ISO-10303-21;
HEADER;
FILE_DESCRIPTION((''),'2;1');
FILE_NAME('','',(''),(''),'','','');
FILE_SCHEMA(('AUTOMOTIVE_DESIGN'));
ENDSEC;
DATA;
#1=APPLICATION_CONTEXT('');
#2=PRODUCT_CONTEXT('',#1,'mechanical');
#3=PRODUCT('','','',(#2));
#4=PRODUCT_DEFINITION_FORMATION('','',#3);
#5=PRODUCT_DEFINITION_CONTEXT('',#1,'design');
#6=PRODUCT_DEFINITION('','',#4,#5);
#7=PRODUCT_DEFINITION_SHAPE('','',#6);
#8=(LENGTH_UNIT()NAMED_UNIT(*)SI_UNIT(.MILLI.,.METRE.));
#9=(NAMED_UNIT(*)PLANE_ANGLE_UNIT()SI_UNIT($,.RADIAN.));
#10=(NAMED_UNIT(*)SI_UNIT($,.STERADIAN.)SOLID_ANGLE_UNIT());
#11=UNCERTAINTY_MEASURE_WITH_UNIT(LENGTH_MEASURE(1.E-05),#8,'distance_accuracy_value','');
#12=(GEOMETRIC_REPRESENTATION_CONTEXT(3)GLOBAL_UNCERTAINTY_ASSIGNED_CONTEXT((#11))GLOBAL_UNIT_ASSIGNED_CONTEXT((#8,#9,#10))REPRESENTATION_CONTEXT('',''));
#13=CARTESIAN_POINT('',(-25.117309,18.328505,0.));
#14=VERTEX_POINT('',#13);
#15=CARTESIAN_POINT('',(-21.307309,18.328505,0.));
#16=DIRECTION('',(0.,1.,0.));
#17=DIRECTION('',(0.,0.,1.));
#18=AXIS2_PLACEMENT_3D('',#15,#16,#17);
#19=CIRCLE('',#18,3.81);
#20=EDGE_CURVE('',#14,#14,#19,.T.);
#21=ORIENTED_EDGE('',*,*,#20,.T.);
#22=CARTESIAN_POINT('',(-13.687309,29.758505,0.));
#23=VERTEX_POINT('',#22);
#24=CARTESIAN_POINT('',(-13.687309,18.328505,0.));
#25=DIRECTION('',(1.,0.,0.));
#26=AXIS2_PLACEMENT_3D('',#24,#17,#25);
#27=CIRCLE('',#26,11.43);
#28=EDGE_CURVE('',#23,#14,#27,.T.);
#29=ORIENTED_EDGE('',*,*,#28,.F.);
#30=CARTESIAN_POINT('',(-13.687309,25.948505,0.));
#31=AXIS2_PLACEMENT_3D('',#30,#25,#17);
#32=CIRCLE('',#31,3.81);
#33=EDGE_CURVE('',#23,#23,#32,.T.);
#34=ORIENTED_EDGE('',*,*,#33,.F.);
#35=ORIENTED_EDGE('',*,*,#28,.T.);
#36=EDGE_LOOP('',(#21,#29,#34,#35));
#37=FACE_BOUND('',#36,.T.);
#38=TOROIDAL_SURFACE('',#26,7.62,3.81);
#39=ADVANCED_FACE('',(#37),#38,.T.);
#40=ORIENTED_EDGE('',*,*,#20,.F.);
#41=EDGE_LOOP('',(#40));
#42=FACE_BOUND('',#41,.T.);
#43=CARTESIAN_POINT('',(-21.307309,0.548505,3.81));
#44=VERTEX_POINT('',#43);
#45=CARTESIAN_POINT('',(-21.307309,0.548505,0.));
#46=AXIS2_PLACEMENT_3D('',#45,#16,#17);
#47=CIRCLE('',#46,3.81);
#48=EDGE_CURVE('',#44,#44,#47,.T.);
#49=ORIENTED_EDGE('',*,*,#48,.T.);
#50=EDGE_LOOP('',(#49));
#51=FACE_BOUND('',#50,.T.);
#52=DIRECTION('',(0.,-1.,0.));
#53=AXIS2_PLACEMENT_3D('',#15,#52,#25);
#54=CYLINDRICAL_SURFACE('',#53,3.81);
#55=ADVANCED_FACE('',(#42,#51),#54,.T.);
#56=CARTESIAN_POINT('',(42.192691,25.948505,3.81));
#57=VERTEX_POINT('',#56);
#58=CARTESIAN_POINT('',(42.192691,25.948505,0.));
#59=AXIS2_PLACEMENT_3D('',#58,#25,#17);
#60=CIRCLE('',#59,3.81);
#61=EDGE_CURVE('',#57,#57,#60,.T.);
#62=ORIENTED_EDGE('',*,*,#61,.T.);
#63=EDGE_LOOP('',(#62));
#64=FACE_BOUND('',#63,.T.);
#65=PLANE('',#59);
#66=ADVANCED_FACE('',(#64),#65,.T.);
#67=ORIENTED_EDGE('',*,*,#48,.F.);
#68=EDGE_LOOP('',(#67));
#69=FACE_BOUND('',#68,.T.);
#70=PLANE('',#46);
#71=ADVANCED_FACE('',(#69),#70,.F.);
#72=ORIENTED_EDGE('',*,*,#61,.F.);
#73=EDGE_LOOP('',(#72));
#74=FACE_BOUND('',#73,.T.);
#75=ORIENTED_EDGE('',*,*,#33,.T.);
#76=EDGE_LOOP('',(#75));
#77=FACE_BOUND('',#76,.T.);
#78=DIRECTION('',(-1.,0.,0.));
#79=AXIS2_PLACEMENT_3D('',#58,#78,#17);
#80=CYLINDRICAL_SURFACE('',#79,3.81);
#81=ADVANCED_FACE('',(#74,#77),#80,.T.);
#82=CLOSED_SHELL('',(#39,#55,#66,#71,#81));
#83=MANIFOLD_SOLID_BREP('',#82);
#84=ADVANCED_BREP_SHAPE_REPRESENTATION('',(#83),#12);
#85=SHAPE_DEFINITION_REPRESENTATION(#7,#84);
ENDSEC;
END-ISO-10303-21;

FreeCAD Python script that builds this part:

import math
import FreeCAD as App
import Part
import Sketcher
Q = App.Units.Quantity

doc = App.newDocument("Part")
params = doc.addObject("Spreadsheet::Sheet", "Params")
for row, (alias, value) in enumerate([
    ("sketch1_diameter", "0.3 in"),
    ("sketch2_radius", "0.3 in"),
    ("sketch2_width", "2.2 in"),
    ("sketch2_height", "0.7 in"),
], start=1):
    params.set(f"A{row}", alias)
    params.set(f"B{row}", "=" + value)
    params.setAlias(f"B{row}", alias)

body = doc.addObject("PartDesign::Body", "Body")

# Sketch on YZ plane
sketch1 = doc.addObject("Sketcher::SketchObject", "Sketch")
body.addObject(sketch1)
sketch1.AttachmentSupport = (doc.YZ_Plane, [""])
sketch1.MapMode = "FlatFace"
sketch1.AttachmentOffset = App.Placement(App.Vector(0, 0, 42.192691), App.Rotation())
sketch1.addGeometry(Part.Circle(App.Vector(25.9, 0, 0), App.Vector(0, 0, 1), 3.8), False)
sketch1.addConstraint(Sketcher.Constraint("PointOnObject", 0, 3, -1))
sketch1.addConstraint(Sketcher.Constraint("Diameter", 0, Q("0.3 in")))
sketch1.addConstraint(Sketcher.Constraint("DistanceX", -1, 1, 0, 3, 25.948505))
sketch1.setExpression("Constraints[1]", "Params.sketch1_diameter")

# Sketch on XY plane
sketch2 = doc.addObject("Sketcher::SketchObject", "Sketch001")
body.addObject(sketch2)
sketch2.AttachmentSupport = (doc.XY_Plane, [""])
sketch2.MapMode = "FlatFace"
sketch2.addGeometry(Part.LineSegment(App.Vector(42, 26, 0), App.Vector(-14, 26, 0)), False)
sketch2.addGeometry(Part.ArcOfCircle(Part.Circle(App.Vector(-14, 18, 0), App.Vector(0, 0, 1), 8), math.radians(90), math.radians(180)), False)
sketch2.addGeometry(Part.LineSegment(App.Vector(-21, 18, 0), App.Vector(-21, 1, 0)), False)
sketch2.addConstraint(Sketcher.Constraint("Tangent", 0, 2, 1, 1))
sketch2.addConstraint(Sketcher.Constraint("Tangent", 1, 2, 2, 1))
sketch2.addConstraint(Sketcher.Constraint("Horizontal", 0))
sketch2.addConstraint(Sketcher.Constraint("Vertical", 2))
sketch2.addConstraint(Sketcher.Constraint("Radius", 1, Q("0.3 in")))
sketch2.addConstraint(Sketcher.Constraint("DistanceX", 0, 2, 0, 1, Q("2.2 in")))
sketch2.addConstraint(Sketcher.Constraint("DistanceY", 2, 2, 2, 1, Q("0.7 in")))
sketch2.addConstraint(Sketcher.Constraint("DistanceX", 1, 3, -1, 1, 13.687309))
sketch2.addConstraint(Sketcher.Constraint("DistanceY", -1, 1, 1, 3, 18.328505))
sketch2.setExpression("Constraints[4]", "Params.sketch2_radius")
sketch2.setExpression("Constraints[5]", "Params.sketch2_width")
sketch2.setExpression("Constraints[6]", "Params.sketch2_height")
doc.recompute()

additivepipe = doc.addObject("PartDesign::AdditivePipe", "AdditivePipe")
body.addObject(additivepipe)
additivepipe.Profile = sketch1
additivepipe.Spine = (sketch2, ["Edge1", "Edge2", "Edge3"])

doc.recompute()
